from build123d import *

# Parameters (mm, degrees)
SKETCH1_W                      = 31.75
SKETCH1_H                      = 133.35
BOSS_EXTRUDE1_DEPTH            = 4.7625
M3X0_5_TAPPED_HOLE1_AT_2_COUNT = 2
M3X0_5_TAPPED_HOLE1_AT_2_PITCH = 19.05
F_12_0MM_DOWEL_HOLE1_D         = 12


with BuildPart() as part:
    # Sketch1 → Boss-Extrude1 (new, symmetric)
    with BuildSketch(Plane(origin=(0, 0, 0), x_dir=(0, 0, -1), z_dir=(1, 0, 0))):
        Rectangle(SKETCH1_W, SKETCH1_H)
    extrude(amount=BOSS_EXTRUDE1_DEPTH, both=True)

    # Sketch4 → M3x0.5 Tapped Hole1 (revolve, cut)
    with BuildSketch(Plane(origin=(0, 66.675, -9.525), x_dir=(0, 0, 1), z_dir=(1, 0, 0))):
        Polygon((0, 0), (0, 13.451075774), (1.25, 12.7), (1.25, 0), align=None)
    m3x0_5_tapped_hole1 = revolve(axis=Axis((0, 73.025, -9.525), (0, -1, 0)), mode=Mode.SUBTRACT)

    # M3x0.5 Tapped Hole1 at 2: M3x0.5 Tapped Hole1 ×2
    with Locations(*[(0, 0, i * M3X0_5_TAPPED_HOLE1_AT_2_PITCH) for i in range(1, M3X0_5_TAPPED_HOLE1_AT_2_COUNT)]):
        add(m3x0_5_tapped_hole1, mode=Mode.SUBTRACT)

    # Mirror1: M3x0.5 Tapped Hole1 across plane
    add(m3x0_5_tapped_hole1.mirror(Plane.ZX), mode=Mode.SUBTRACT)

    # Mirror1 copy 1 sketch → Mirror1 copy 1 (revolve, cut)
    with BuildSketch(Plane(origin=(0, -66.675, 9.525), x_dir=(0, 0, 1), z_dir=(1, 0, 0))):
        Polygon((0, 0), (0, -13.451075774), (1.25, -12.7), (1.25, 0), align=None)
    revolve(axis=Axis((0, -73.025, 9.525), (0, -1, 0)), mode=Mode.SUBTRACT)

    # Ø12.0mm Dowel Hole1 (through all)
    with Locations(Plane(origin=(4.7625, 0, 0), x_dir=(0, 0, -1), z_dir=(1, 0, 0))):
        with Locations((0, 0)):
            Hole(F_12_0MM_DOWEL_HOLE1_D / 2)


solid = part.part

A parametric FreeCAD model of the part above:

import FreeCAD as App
import Part
import Sketcher

V = App.Vector
Q = App.Units.Quantity


def add_polygon(sketch, points):
    """Adds a closed chain of lines whose ends are joined by coincident constraints."""
    first, n = sketch.GeometryCount, len(points)
    for a, b in zip(points, points[1:] + points[:1]):
        sketch.addGeometry(Part.LineSegment(App.Vector(*a, 0), App.Vector(*b, 0)), False)
    for i in range(n):
        sketch.addConstraint(Sketcher.Constraint("Coincident", first + i, 2, first + (i + 1) % n, 1))

doc = App.newDocument("Part")
body = doc.addObject("PartDesign::Body", "Body")

sketch1 = body.newObject("Sketcher::SketchObject", "Sketch")
sketch1.AttachmentSupport = (doc.getObject("YZ_Plane"), [""])
sketch1.MapMode = "FlatFace"
add_polygon(sketch1, [(67, 16), (-67, 16), (-67, -16), (67, -16)])
sketch1.addConstraint(Sketcher.Constraint("Horizontal", 0))
sketch1.addConstraint(Sketcher.Constraint("Vertical", 1))
sketch1.addConstraint(Sketcher.Constraint("Horizontal", 2))
sketch1.addConstraint(Sketcher.Constraint("Vertical", 3))
sketch1.addConstraint(Sketcher.Constraint("Symmetric", 0, 2, 2, 2, -1, 1))
sketch1.addConstraint(Sketcher.Constraint("DistanceX", 0, 2, 0, 1, Q("5.25 in")))
sketch1.addConstraint(Sketcher.Constraint("DistanceY", 1, 2, 1, 1, Q("1.25 in")))
pad1 = body.newObject("PartDesign::Pad", "Pad")
pad1.Profile = sketch1
pad1.Length = Q("0.375 in")
pad1.Midplane = True

sketch2 = body.newObject("Sketcher::SketchObject", "Sketch001")
sketch2.AttachmentSupport = (doc.getObject("YZ_Plane"), [""])
sketch2.MapMode = "FlatFace"
add_polygon(sketch2, [(53.2, -9.5), (66.7, -9.5), (66.7, -8.3), (54, -8.3)])
sketch2.addGeometry(Part.LineSegment(V(66.7, -9.5, 0), V(53.2, -9.5, 0)), True)
sketch2.addConstraint(Sketcher.Constraint("Horizontal", 0))
sketch2.addConstraint(Sketcher.Constraint("Vertical", 1))
sketch2.addConstraint(Sketcher.Constraint("Horizontal", 2))
sketch2.addConstraint(Sketcher.Constraint("Horizontal", 4))
sketch2.addConstraint(Sketcher.Constraint("Coincident", 4, 1, 0, 2))
sketch2.addConstraint(Sketcher.Constraint("Equal", 0, 4))
sketch2.addConstraint(Sketcher.Constraint("DistanceX", 2, 2, 2, 1, Q("0.5 in")))
sketch2.addConstraint(Sketcher.Constraint("Angle", 3, Q("-121 deg")))
sketch2.addConstraint(Sketcher.Constraint("DistanceX", -1, 1, 0, 2, Q("2.625 in")))
sketch2.addConstraint(Sketcher.Constraint("DistanceY", 0, 2, -1, 1, Q("0.375 in")))
sketch2.addConstraint(Sketcher.Constraint("DistanceY", 1, 1, 1, 2, 1.25))
groove = body.newObject("PartDesign::Groove", "Groove")
groove.Profile = sketch2
groove.ReferenceAxis = (sketch2, ["Axis0"])
groove.Angle = 360
doc.recompute()

linearpattern = body.newObject("PartDesign::LinearPattern", "LinearPattern")
linearpattern.Originals = [groove]
linearpattern.Direction = (doc.getObject("Z_Axis"), [""])
linearpattern.Mode = "offset"
linearpattern.Offset = Q("0.75 in")
linearpattern.Occurrences = 2
body.Tip = linearpattern
doc.recompute()

mirrored = body.newObject("PartDesign::Mirrored", "Mirrored")
mirrored.Originals = [groove]
mirrored.MirrorPlane = (doc.getObject("XZ_Plane"), [""])
body.Tip = mirrored

sketch3 = body.newObject("Sketcher::SketchObject", "Sketch002")
sketch3.AttachmentSupport = (doc.getObject("YZ_Plane"), [""])
sketch3.MapMode = "FlatFace"
add_polygon(sketch3, [(-66.7, 9.5), (-53.2, 9.5), (-54, 10.8), (-66.7, 10.8)])
sketch3.addGeometry(Part.LineSegment(V(-53.2, 9.5, 0), V(-66.7, 9.5, 0)), True)
sketch3.addConstraint(Sketcher.Constraint("Horizontal", 0))
sketch3.addConstraint(Sketcher.Constraint("Horizontal", 2))
sketch3.addConstraint(Sketcher.Constraint("Vertical", 3))
sketch3.addConstraint(Sketcher.Constraint("Horizontal", 4))
sketch3.addConstraint(Sketcher.Constraint("Coincident", 4, 1, 0, 2))
sketch3.addConstraint(Sketcher.Constraint("Vertical", 2, 2, 4, 2))
sketch3.addConstraint(Sketcher.Constraint("DistanceX", 2, 2, 2, 1, Q("0.5 in")))
sketch3.addConstraint(Sketcher.Constraint("Angle", 1, Q("121 deg")))
sketch3.addConstraint(Sketcher.Constraint("DistanceY", -1, 1, 0, 2, Q("0.375 in")))
sketch3.addConstraint(Sketcher.Constraint("DistanceX", 1, 2, -1, 1, Q("2.125 in")))
sketch3.addConstraint(Sketcher.Constraint("DistanceY", 3, 2, 3, 1, 1.25))
groove2 = body.newObject("PartDesign::Groove", "Groove001")
groove2.Profile = sketch3
groove2.ReferenceAxis = (sketch3, ["Axis0"])
groove2.Angle = 360

sketch4 = body.newObject("Sketcher::SketchObject", "Sketch003")
sketch4.AttachmentSupport = (doc.getObject("YZ_Plane"), [""])
sketch4.MapMode = "FlatFace"
sketch4.AttachmentOffset = App.Placement(V(0, 0, 0.1875 * 25.4), App.Rotation())
sketch4.addGeometry(Part.Circle(V(0, 0, 0), V(0, 0, 1), 6), False)
sketch4.addConstraint(Sketcher.Constraint("Coincident", 0, 3, -1, 1))
sketch4.addConstraint(Sketcher.Constraint("Diameter", 0, 12.0))
doc.recompute()
hole = body.newObject("PartDesign::Hole", "Hole")
hole.Profile = sketch4
hole.ThreadType = "None"
hole.Diameter = 12
hole.DepthType = "ThroughAll"

doc.recompute()
